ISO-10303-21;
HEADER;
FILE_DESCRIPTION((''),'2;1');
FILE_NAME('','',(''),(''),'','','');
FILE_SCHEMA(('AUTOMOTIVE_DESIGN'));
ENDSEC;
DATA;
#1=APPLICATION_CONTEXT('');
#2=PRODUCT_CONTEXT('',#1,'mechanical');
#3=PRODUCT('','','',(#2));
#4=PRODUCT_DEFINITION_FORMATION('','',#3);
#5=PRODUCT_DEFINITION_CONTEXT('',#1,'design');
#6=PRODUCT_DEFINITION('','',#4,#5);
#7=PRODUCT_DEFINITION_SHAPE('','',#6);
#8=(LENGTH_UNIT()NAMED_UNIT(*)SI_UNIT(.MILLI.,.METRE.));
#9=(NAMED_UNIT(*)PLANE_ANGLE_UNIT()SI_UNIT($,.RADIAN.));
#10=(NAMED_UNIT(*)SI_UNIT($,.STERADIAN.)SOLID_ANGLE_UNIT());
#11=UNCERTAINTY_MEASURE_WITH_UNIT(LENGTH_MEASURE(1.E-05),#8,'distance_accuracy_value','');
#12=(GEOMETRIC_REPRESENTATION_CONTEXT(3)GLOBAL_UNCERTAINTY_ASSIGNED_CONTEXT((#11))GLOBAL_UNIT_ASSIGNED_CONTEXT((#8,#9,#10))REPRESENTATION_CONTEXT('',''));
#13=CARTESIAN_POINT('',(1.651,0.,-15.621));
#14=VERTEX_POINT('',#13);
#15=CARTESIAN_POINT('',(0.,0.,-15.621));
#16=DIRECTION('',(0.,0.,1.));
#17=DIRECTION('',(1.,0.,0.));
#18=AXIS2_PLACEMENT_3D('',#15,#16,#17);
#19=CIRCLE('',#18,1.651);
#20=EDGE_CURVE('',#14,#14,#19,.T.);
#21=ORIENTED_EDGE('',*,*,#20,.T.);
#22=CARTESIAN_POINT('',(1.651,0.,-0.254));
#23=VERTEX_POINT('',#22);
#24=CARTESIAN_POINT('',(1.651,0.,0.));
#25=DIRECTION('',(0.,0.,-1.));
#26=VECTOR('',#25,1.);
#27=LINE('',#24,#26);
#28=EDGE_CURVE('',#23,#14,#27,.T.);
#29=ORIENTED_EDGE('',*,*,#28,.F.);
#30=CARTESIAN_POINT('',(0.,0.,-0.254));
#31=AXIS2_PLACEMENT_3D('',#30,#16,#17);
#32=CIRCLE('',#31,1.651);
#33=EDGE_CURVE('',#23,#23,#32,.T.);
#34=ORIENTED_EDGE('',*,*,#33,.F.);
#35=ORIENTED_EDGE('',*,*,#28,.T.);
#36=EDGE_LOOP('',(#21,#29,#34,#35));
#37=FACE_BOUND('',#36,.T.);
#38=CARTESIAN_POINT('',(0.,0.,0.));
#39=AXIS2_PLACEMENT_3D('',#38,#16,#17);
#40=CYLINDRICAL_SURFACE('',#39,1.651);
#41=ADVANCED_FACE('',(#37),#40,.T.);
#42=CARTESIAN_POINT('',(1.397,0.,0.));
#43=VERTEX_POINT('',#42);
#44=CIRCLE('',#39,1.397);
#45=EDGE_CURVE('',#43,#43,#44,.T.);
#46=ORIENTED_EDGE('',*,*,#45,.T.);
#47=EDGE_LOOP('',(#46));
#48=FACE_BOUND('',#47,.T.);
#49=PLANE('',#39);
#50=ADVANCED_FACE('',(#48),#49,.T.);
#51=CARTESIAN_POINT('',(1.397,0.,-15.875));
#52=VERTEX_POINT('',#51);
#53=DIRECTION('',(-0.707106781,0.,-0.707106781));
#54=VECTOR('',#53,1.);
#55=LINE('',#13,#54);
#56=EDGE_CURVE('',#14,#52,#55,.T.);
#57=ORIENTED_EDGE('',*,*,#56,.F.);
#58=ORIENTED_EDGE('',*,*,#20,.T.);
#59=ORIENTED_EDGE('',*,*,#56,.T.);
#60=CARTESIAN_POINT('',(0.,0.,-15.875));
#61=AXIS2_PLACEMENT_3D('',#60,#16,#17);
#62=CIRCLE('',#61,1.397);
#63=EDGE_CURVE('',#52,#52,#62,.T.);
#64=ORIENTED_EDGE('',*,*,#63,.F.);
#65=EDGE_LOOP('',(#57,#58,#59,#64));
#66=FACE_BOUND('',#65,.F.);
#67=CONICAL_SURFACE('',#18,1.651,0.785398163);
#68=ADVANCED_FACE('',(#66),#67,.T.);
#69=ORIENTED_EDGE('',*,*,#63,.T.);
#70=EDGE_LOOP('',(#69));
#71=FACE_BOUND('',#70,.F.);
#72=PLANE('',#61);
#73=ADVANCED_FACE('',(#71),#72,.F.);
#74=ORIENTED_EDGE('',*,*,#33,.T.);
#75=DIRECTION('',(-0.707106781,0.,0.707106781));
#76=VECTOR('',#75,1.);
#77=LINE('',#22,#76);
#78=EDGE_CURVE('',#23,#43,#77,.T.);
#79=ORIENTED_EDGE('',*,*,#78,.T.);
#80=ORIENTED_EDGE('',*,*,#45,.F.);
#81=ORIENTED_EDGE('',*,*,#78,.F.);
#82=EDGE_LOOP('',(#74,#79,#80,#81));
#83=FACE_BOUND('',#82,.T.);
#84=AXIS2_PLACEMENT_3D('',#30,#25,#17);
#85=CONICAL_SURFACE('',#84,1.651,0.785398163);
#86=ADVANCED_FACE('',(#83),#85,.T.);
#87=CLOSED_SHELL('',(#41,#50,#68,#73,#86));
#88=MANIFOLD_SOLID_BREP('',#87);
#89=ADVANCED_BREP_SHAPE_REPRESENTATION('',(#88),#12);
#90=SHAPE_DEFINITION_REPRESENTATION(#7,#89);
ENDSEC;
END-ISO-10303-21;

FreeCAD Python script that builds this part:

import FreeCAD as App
import Part
import Sketcher

V = App.Vector
Q = App.Units.Quantity


def edges_at(feature, points):
    """Names of the edges that pass closest to the given points."""
    edges = feature.Shape.Edges
    near = lambda p: min(range(len(edges)), key=lambda i: edges[i].distToShape(Part.Vertex(*p))[0])
    return sorted({f"Edge{near(p) + 1}" for p in points})

doc = App.newDocument("Part")
body = doc.addObject("PartDesign::Body", "Body")

sketch1 = doc.addObject("Sketcher::SketchObject", "Sketch")
body.addObject(sketch1)
sketch1.AttachmentSupport = (doc.XY_Plane, [""])
sketch1.MapMode = "FlatFace"
sketch1.addGeometry(Part.Circle(V(0, 0, 0), V(0, 0, 1), 1.651), False)
sketch1.addConstraint([
    Sketcher.Constraint("Coincident", 0, 3, -1, 1),
    Sketcher.Constraint("Diameter", 0, Q("0.13 in")),
])
pad1 = doc.addObject("PartDesign::Pad", "Pad")
body.addObject(pad1)
pad1.Profile = sketch1
pad1.Length = Q("0.625 in")
pad1.Reversed = True
doc.recompute()

chamfer = doc.addObject("PartDesign::Chamfer", "Chamfer")
body.addObject(chamfer)
chamfer.Base = (pad1, edges_at(pad1, [(-1.651, 0, 0), (-1.651, 0, -15.875)]))
chamfer.Size = Q("0.01 in")

doc.recompute()
